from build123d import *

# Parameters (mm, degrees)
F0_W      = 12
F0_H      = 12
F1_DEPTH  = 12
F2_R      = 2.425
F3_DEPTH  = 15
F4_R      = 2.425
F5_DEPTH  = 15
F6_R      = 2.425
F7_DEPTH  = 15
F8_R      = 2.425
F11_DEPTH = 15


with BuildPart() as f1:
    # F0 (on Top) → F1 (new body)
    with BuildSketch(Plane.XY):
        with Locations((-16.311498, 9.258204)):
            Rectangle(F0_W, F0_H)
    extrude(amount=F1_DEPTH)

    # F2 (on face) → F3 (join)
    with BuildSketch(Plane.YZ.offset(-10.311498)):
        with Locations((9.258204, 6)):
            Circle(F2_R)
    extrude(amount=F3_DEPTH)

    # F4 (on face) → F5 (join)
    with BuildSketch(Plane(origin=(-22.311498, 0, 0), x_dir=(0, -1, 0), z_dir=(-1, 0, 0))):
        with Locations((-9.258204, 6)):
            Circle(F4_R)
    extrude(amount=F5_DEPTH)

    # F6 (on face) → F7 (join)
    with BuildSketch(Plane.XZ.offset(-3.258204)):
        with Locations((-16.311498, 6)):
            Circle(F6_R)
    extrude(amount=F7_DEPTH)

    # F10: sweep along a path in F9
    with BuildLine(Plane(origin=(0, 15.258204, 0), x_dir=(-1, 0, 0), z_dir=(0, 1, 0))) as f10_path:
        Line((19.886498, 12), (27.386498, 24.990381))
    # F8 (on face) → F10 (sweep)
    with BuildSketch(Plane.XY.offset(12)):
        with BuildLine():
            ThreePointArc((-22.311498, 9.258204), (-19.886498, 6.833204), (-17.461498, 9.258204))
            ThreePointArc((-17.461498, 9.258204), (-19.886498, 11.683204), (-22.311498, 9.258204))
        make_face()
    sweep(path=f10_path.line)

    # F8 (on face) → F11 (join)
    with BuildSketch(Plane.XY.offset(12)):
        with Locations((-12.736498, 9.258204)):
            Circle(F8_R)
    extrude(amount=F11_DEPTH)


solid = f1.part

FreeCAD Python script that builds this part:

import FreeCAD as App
import Part
import Sketcher

V = App.Vector

doc = App.newDocument("Part")
body = doc.addObject("PartDesign::Body", "Body")

# Sketch on XY plane
sketch1 = doc.addObject("Sketcher::SketchObject", "Sketch")
body.addObject(sketch1)
sketch1.AttachmentSupport = (doc.XY_Plane, [""])
sketch1.MapMode = "FlatFace"
sketch1.addGeometry([
    Part.LineSegment(V(-22, 15, 0), V(-22, 3, 0)),
    Part.LineSegment(V(-22, 3, 0), V(-10, 3, 0)),
    Part.LineSegment(V(-10, 3, 0), V(-10, 15, 0)),
    Part.LineSegment(V(-10, 15, 0), V(-22, 15, 0)),
], False)
sketch1.addConstraint([
    Sketcher.Constraint("Coincident", 0, 2, 1, 1),
    Sketcher.Constraint("Coincident", 1, 2, 2, 1),
    Sketcher.Constraint("Coincident", 2, 2, 3, 1),
    Sketcher.Constraint("Coincident", 3, 2, 0, 1),
    Sketcher.Constraint("Vertical", 0),
    Sketcher.Constraint("Horizontal", 1),
    Sketcher.Constraint("Vertical", 2),
    Sketcher.Constraint("Horizontal", 3),
    Sketcher.Constraint("Equal", 3, 0),
    Sketcher.Constraint("DistanceX", 1, 1, 1, 2, 12.0),
    Sketcher.Constraint("DistanceX", 0, 2, -1, 1, 22.311498),
    Sketcher.Constraint("DistanceY", -1, 1, 0, 2, 3.258204),
])
pad1 = doc.addObject("PartDesign::Pad", "Pad")
body.addObject(pad1)
pad1.Profile = sketch1
pad1.Length = 12

# Sketch on YZ plane
sketch2 = doc.addObject("Sketcher::SketchObject", "Sketch001")
body.addObject(sketch2)
sketch2.AttachmentSupport = (doc.YZ_Plane, [""])
sketch2.MapMode = "FlatFace"
sketch2.AttachmentOffset = App.Placement(V(0, 0, -10.311498), App.Rotation())
sketch2.addGeometry(Part.Circle(V(9.3, 6, 0), V(0, 0, 1), 2.4), False)
sketch2.addConstraint([
    Sketcher.Constraint("Diameter", 0, 4.85),
    Sketcher.Constraint("DistanceY", -1, 1, 0, 3, 6.0),
    Sketcher.Constraint("DistanceX", -1, 1, 0, 3, 9.258204),
])
pad2 = doc.addObject("PartDesign::Pad", "Pad001")
body.addObject(pad2)
pad2.Profile = sketch2
pad2.Length = 15

# Sketch on YZ plane
sketch3 = doc.addObject("Sketcher::SketchObject", "Sketch002")
body.addObject(sketch3)
sketch3.AttachmentSupport = (doc.YZ_Plane, [""])
sketch3.MapMode = "FlatFace"
sketch3.AttachmentOffset = App.Placement(V(0, 0, -22.311498), App.Rotation())
sketch3.addGeometry(Part.Circle(V(9.3, 6, 0), V(0, 0, 1), 2.4), False)
sketch3.addConstraint([
    Sketcher.Constraint("Diameter", 0, 4.85),
    Sketcher.Constraint("DistanceY", -1, 1, 0, 3, 6.0),
    Sketcher.Constraint("DistanceX", -1, 1, 0, 3, 9.258204),
])
pad3 = doc.addObject("PartDesign::Pad", "Pad002")
body.addObject(pad3)
pad3.Profile = sketch3
pad3.Length = 15
pad3.Reversed = True

# Sketch on XZ plane
sketch4 = doc.addObject("Sketcher::SketchObject", "Sketch003")
body.addObject(sketch4)
sketch4.AttachmentSupport = (doc.XZ_Plane, [""])
sketch4.MapMode = "FlatFace"
sketch4.AttachmentOffset = App.Placement(V(0, 0, -3.258204), App.Rotation())
sketch4.addGeometry(Part.Circle(V(-16.3, 6, 0), V(0, 0, 1), 2.4), False)
sketch4.addConstraint([
    Sketcher.Constraint("Diameter", 0, 4.85),
    Sketcher.Constraint("DistanceY", -1, 1, 0, 3, 6.0),
    Sketcher.Constraint("DistanceX", 0, 3, -1, 1, 16.311498),
])
pad4 = doc.addObject("PartDesign::Pad", "Pad003")
body.addObject(pad4)
pad4.Profile = sketch4
pad4.Length = 15

# Sketch on XY plane
sketch5 = doc.addObject("Sketcher::SketchObject", "Sketch004")
body.addObject(sketch5)
sketch5.AttachmentSupport = (doc.XY_Plane, [""])
sketch5.MapMode = "FlatFace"
sketch5.AttachmentOffset = App.Placement(V(0, 0, 12), App.Rotation())
sketch5.addGeometry(Part.Circle(V(-19.9, 9.3, 0), V(0, 0, 1), 2.4), False)
sketch5.addConstraint([
    Sketcher.Constraint("Diameter", 0, 4.85),
    Sketcher.Constraint("DistanceX", 0, 3, -1, 1, 19.886498),
    Sketcher.Constraint("DistanceY", -1, 1, 0, 3, 9.258204),
])

# Sketch on an angled plane
sketch6 = doc.addObject("Sketcher::SketchObject", "Sketch005")
body.addObject(sketch6)
sketch6.Placement = App.Placement(V(-9.718721, 0, -5.611106), App.Rotation(V(-0.500000002, 0, 0.866025403), V(0, 1.000000001, 0), V(-0.866025403, 0, -0.500000002), "ZXY"))
sketch6.addGeometry(Part.LineSegment(V(20, 15, 0), V(35, 15, 0)), False)
sketch6.addConstraint([
    Sketcher.Constraint("Horizontal", 0),
    Sketcher.Constraint("DistanceX", 0, 1, 0, 2, 15.0),
    Sketcher.Constraint("DistanceX", -1, 1, 0, 1, 20.335554),
    Sketcher.Constraint("DistanceY", -1, 1, 0, 1, 15.258204),
])
doc.recompute()

additivepipe = doc.addObject("PartDesign::AdditivePipe", "AdditivePipe")
body.addObject(additivepipe)
additivepipe.Profile = sketch5
additivepipe.Spine = (sketch6, ["Edge1"])

# Sketch on XY plane
sketch7 = doc.addObject("Sketcher::SketchObject", "Sketch006")
body.addObject(sketch7)
sketch7.AttachmentSupport = (doc.XY_Plane, [""])
sketch7.MapMode = "FlatFace"
sketch7.AttachmentOffset = App.Placement(V(0, 0, 12), App.Rotation())
sketch7.addGeometry(Part.Circle(V(-12.7, 9.3, 0), V(0, 0, 1), 2.4), False)
sketch7.addConstraint([
    Sketcher.Constraint("Diameter", 0, 4.85),
    Sketcher.Constraint("DistanceX", 0, 3, -1, 1, 12.736498),
    Sketcher.Constraint("DistanceY", -1, 1, 0, 3, 9.258204),
])
pad5 = doc.addObject("PartDesign::Pad", "Pad004")
body.addObject(pad5)
pad5.Profile = sketch7
pad5.Length = 15

doc.recompute()
